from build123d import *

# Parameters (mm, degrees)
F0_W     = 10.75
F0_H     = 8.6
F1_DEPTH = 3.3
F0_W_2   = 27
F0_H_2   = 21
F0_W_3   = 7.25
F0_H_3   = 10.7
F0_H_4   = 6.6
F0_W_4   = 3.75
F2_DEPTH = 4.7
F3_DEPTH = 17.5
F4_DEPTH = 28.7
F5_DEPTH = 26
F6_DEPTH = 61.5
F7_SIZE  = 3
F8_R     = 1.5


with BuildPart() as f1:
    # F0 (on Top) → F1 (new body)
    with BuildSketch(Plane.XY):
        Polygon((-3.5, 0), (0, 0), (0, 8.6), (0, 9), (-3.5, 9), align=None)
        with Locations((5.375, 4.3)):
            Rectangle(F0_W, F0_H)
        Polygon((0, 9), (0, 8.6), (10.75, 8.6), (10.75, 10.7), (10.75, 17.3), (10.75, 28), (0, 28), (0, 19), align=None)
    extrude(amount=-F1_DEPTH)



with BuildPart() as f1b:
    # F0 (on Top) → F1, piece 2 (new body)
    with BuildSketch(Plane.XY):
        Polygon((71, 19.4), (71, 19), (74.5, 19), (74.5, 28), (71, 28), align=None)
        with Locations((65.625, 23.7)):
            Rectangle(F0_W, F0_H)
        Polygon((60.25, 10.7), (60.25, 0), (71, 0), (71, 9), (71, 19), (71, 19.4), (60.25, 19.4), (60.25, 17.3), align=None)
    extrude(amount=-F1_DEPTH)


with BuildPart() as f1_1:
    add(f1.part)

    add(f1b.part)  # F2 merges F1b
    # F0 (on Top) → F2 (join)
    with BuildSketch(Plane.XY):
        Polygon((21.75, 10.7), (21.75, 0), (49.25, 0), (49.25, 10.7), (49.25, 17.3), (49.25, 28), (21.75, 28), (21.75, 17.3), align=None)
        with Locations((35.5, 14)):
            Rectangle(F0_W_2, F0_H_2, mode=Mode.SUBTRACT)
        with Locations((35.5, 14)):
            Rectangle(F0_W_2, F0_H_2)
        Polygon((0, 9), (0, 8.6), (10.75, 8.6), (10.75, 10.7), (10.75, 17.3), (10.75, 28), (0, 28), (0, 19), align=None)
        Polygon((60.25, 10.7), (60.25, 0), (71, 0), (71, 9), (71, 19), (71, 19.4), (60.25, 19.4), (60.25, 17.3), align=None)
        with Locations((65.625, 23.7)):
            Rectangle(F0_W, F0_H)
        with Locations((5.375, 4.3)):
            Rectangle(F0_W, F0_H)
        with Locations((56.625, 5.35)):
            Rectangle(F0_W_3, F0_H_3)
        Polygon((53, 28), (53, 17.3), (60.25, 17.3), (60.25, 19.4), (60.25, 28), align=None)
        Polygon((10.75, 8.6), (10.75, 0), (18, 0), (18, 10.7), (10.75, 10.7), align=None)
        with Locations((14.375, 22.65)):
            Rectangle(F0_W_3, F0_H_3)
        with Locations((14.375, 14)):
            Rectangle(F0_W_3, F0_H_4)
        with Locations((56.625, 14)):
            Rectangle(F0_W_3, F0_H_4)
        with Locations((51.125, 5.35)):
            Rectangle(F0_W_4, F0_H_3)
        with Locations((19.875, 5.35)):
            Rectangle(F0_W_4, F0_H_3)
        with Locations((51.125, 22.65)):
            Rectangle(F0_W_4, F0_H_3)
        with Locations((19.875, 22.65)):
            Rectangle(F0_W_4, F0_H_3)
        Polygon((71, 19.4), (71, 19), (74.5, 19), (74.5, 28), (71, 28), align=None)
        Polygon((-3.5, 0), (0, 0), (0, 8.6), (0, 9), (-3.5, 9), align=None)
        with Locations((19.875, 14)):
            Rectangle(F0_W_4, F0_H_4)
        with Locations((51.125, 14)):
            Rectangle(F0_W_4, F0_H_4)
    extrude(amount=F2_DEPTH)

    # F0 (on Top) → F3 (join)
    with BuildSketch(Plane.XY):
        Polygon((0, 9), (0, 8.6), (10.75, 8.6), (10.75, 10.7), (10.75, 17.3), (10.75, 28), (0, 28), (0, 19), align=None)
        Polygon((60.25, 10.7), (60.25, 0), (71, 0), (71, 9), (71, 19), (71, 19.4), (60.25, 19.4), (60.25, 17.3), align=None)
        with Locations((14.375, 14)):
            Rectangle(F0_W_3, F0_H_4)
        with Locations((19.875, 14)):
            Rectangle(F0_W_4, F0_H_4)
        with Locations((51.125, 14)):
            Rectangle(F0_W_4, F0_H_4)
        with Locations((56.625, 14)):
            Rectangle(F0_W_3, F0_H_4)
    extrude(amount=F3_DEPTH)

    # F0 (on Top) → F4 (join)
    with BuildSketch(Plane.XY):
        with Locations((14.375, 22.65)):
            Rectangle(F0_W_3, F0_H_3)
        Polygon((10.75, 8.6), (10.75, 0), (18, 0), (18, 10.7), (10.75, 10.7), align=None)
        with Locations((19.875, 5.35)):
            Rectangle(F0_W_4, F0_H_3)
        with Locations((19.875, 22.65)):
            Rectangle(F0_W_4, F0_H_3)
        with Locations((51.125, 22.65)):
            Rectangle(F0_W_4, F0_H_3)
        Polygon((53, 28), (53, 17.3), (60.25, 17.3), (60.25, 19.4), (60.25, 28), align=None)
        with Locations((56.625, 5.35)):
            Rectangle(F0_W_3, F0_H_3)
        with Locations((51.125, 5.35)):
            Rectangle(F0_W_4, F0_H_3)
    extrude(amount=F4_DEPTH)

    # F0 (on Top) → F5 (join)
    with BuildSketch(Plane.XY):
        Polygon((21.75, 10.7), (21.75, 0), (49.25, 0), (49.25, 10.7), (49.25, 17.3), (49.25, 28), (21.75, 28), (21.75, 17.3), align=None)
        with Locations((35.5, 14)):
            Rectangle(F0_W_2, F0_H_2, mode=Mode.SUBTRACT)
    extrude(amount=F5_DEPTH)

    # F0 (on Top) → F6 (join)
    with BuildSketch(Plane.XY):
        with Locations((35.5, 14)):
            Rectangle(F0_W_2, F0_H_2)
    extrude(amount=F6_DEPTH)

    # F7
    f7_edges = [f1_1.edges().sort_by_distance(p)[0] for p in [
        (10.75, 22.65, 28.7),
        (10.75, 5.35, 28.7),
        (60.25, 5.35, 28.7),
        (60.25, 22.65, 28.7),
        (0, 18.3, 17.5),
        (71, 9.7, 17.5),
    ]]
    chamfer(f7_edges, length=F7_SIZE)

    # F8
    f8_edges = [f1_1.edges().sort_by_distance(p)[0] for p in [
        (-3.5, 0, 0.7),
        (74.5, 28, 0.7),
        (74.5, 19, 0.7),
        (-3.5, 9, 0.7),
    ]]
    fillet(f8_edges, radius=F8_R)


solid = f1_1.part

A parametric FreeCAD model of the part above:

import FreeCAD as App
import Part
import Sketcher
from FreeCAD import Vector


def edges_at(feature, points):
    """Names of the edges that pass closest to the given points."""
    edges = feature.Shape.Edges
    near = lambda p: min(range(len(edges)), key=lambda i: edges[i].distToShape(Part.Vertex(*p))[0])
    return sorted({f"Edge{near(p) + 1}" for p in points})

doc = App.newDocument("Part")
body = doc.addObject("PartDesign::Body", "Body")

sketch1 = body.newObject("Sketcher::SketchObject", "Sketch")
sketch1.AttachmentSupport = (doc.getObject("XY_Plane"), [""])
sketch1.MapMode = "FlatFace"
sketch1.addGeometry([
    Part.LineSegment(Vector(-3.5, 0, 0), Vector(10.8, 0, 0)),
    Part.LineSegment(Vector(10.8, 0, 0), Vector(10.8, 28, 0)),
    Part.LineSegment(Vector(10.8, 28, 0), Vector(0, 28, 0)),
    Part.LineSegment(Vector(0, 28, 0), Vector(0, 9, 0)),
    Part.LineSegment(Vector(0, 9, 0), Vector(-3.5, 9, 0)),
    Part.LineSegment(Vector(-3.5, 9, 0), Vector(-3.5, 0, 0)),
], False)
sketch1.addConstraint([
    Sketcher.Constraint("Coincident", 0, 2, 1, 1),
    Sketcher.Constraint("Coincident", 1, 2, 2, 1),
    Sketcher.Constraint("Coincident", 2, 2, 3, 1),
    Sketcher.Constraint("Coincident", 3, 2, 4, 1),
    Sketcher.Constraint("Coincident", 4, 2, 5, 1),
    Sketcher.Constraint("Coincident", 5, 2, 0, 1),
    Sketcher.Constraint("Horizontal", 0),
    Sketcher.Constraint("Vertical", 1),
    Sketcher.Constraint("Horizontal", 2),
    Sketcher.Constraint("Vertical", 3),
    Sketcher.Constraint("Horizontal", 4),
    Sketcher.Constraint("Vertical", 5),
    Sketcher.Constraint("PointOnObject", 0, 2, -1),
    Sketcher.Constraint("PointOnObject", 2, 2, -2),
    Sketcher.Constraint("DistanceY", 1, 1, 1, 2, 28.0),
    Sketcher.Constraint("DistanceY", 3, 2, 3, 1, 19.0),
    Sketcher.Constraint("DistanceX", 4, 2, 4, 1, 3.5),
    Sketcher.Constraint("DistanceX", 0, 1, 0, 2, 14.25),
])
pad1 = body.newObject("PartDesign::Pad", "Pad")
pad1.Profile = sketch1
pad1.Length = 3.3
pad1.Reversed = True
body2 = doc.addObject("PartDesign::Body", "Body001")

sketch2 = body2.newObject("Sketcher::SketchObject", "Sketch001")
sketch2.AttachmentSupport = (doc.getObject("XY_Plane001"), [""])
sketch2.MapMode = "FlatFace"
sketch2.addGeometry([
    Part.LineSegment(Vector(71, 19, 0), Vector(74.5, 19, 0)),
    Part.LineSegment(Vector(74.5, 19, 0), Vector(74.5, 28, 0)),
    Part.LineSegment(Vector(74.5, 28, 0), Vector(60.2, 28, 0)),
    Part.LineSegment(Vector(60.2, 28, 0), Vector(60.2, 0, 0)),
    Part.LineSegment(Vector(60.2, 0, 0), Vector(71, 0, 0)),
    Part.LineSegment(Vector(71, 0, 0), Vector(71, 19, 0)),
], False)
sketch2.addConstraint([
    Sketcher.Constraint("Coincident", 0, 2, 1, 1),
    Sketcher.Constraint("Coincident", 1, 2, 2, 1),
    Sketcher.Constraint("Coincident", 2, 2, 3, 1),
    Sketcher.Constraint("Coincident", 3, 2, 4, 1),
    Sketcher.Constraint("Coincident", 4, 2, 5, 1),
    Sketcher.Constraint("Coincident", 5, 2, 0, 1),
    Sketcher.Constraint("Horizontal", 0),
    Sketcher.Constraint("Vertical", 1),
    Sketcher.Constraint("Horizontal", 2),
    Sketcher.Constraint("Vertical", 3),
    Sketcher.Constraint("Horizontal", 4),
    Sketcher.Constraint("Vertical", 5),
    Sketcher.Constraint("PointOnObject", 3, 2, -1),
    Sketcher.Constraint("DistanceY", 1, 1, 1, 2, 9.0),
    Sketcher.Constraint("DistanceY", 3, 2, 3, 1, 28.0),
    Sketcher.Constraint("DistanceX", 0, 1, 0, 2, 3.5),
    Sketcher.Constraint("DistanceX", -1, 1, 4, 2, 71.0),
    Sketcher.Constraint("DistanceX", 2, 2, 2, 1, 14.25),
])
pad2 = body2.newObject("PartDesign::Pad", "Pad001")
pad2.Profile = sketch2
pad2.Length = 3.3
pad2.Reversed = True
body.AllowCompound = True
doc.recompute()

boolean = body.newObject("PartDesign::Boolean", "Boolean")
boolean.Type = "Fuse"
boolean.addObjects([body2])

sketch3 = body.newObject("Sketcher::SketchObject", "Sketch002")
sketch3.AttachmentSupport = (doc.getObject("XY_Plane"), [""])
sketch3.MapMode = "FlatFace"
sketch3.addGeometry([
    Part.LineSegment(Vector(71, 0, 0), Vector(71, 19, 0)),
    Part.LineSegment(Vector(71, 19, 0), Vector(74.5, 19, 0)),
    Part.LineSegment(Vector(74.5, 19, 0), Vector(74.5, 28, 0)),
    Part.LineSegment(Vector(74.5, 28, 0), Vector(0, 28, 0)),
    Part.LineSegment(Vector(0, 28, 0), Vector(0, 9, 0)),
    Part.LineSegment(Vector(0, 9, 0), Vector(-3.5, 9, 0)),
    Part.LineSegment(Vector(-3.5, 9, 0), Vector(-3.5, 0, 0)),
    Part.LineSegment(Vector(-3.5, 0, 0), Vector(71, 0, 0)),
], False)
sketch3.addConstraint([
    Sketcher.Constraint("Coincident", 0, 2, 1, 1),
    Sketcher.Constraint("Coincident", 1, 2, 2, 1),
    Sketcher.Constraint("Coincident", 2, 2, 3, 1),
    Sketcher.Constraint("Coincident", 3, 2, 4, 1),
    Sketcher.Constraint("Coincident", 4, 2, 5, 1),
    Sketcher.Constraint("Coincident", 5, 2, 6, 1),
    Sketcher.Constraint("Coincident", 6, 2, 7, 1),
    Sketcher.Constraint("Coincident", 7, 2, 0, 1),
    Sketcher.Constraint("Vertical", 0),
    Sketcher.Constraint("Horizontal", 1),
    Sketcher.Constraint("Vertical", 2),
    Sketcher.Constraint("Horizontal", 3),
    Sketcher.Constraint("Vertical", 4),
    Sketcher.Constraint("Horizontal", 5),
    Sketcher.Constraint("Vertical", 6),
    Sketcher.Constraint("Horizontal", 7),
    Sketcher.Constraint("PointOnObject", 3, 2, -2),
    Sketcher.Constraint("PointOnObject", 6, 2, -1),
    Sketcher.Constraint("Equal", 1, 5),
    Sketcher.Constraint("Equal", 0, 4),
    Sketcher.Constraint("DistanceY", 0, 1, 0, 2, 19.0),
    Sketcher.Constraint("DistanceY", 2, 1, 2, 2, 9.0),
    Sketcher.Constraint("DistanceX", 1, 1, 1, 2, 3.5),
    Sketcher.Constraint("DistanceX", 3, 2, 3, 1, 74.5),
])
pad3 = body.newObject("PartDesign::Pad", "Pad002")
pad3.Profile = sketch3
pad3.Length = 4.7

sketch4 = body.newObject("Sketcher::SketchObject", "Sketch003")
sketch4.AttachmentSupport = (doc.getObject("XY_Plane"), [""])
sketch4.MapMode = "FlatFace"
sketch4.addGeometry([
    Part.LineSegment(Vector(0, 8.6, 0), Vector(10.8, 8.6, 0)),
    Part.LineSegment(Vector(10.8, 8.6, 0), Vector(10.8, 10.7, 0)),
    Part.LineSegment(Vector(10.8, 10.7, 0), Vector(21.8, 10.7, 0)),
    Part.LineSegment(Vector(21.8, 10.7, 0), Vector(21.8, 17.3, 0)),
    Part.LineSegment(Vector(21.8, 17.3, 0), Vector(10.8, 17.3, 0)),
    Part.LineSegment(Vector(10.8, 17.3, 0), Vector(10.8, 28, 0)),
    Part.LineSegment(Vector(10.8, 28, 0), Vector(0, 28, 0)),
    Part.LineSegment(Vector(0, 28, 0), Vector(0, 8.6, 0)),
    Part.LineSegment(Vector(60.2, 0, 0), Vector(71, 0, 0)),
    Part.LineSegment(Vector(71, 0, 0), Vector(71, 19.4, 0)),
    Part.LineSegment(Vector(71, 19.4, 0), Vector(60.2, 19.4, 0)),
    Part.LineSegment(Vector(60.2, 19.4, 0), Vector(60.2, 17.3, 0)),
    Part.LineSegment(Vector(60.2, 17.3, 0), Vector(49.2, 17.3, 0)),
    Part.LineSegment(Vector(49.2, 17.3, 0), Vector(49.2, 10.7, 0)),
    Part.LineSegment(Vector(49.2, 10.7, 0), Vector(60.2, 10.7, 0)),
    Part.LineSegment(Vector(60.2, 10.7, 0), Vector(60.2, 0, 0)),
], False)
sketch4.addConstraint([
    Sketcher.Constraint("Coincident", 0, 2, 1, 1),
    Sketcher.Constraint("Coincident", 1, 2, 2, 1),
    Sketcher.Constraint("Coincident", 2, 2, 3, 1),
    Sketcher.Constraint("Coincident", 3, 2, 4, 1),
    Sketcher.Constraint("Coincident", 4, 2, 5, 1),
    Sketcher.Constraint("Coincident", 5, 2, 6, 1),
    Sketcher.Constraint("Coincident", 6, 2, 7, 1),
    Sketcher.Constraint("Coincident", 7, 2, 0, 1),
    Sketcher.Constraint("Coincident", 8, 2, 9, 1),
    Sketcher.Constraint("Coincident", 9, 2, 10, 1),
    Sketcher.Constraint("Coincident", 10, 2, 11, 1),
    Sketcher.Constraint("Coincident", 11, 2, 12, 1),
    Sketcher.Constraint("Coincident", 12, 2, 13, 1),
    Sketcher.Constraint("Coincident", 13, 2, 14, 1),
    Sketcher.Constraint("Coincident", 14, 2, 15, 1),
    Sketcher.Constraint("Coincident", 15, 2, 8, 1),
    Sketcher.Constraint("Horizontal", 0),
    Sketcher.Constraint("Vertical", 1),
    Sketcher.Constraint("Horizontal", 2),
    Sketcher.Constraint("Vertical", 3),
    Sketcher.Constraint("Horizontal", 4),
    Sketcher.Constraint("Vertical", 5),
    Sketcher.Constraint("Horizontal", 6),
    Sketcher.Constraint("Vertical", 7),
    Sketcher.Constraint("Horizontal", 8),
    Sketcher.Constraint("Vertical", 9),
    Sketcher.Constraint("Horizontal", 10),
    Sketcher.Constraint("Vertical", 11),
    Sketcher.Constraint("Horizontal", 12),
    Sketcher.Constraint("Vertical", 13),
    Sketcher.Constraint("Horizontal", 14),
    Sketcher.Constraint("Vertical", 15),
    Sketcher.Constraint("PointOnObject", 6, 2, -2),
    Sketcher.Constraint("PointOnObject", 8, 2, -1),
    Sketcher.Constraint("Horizontal", 4, 2, 11, 2),
    Sketcher.Constraint("Horizontal", 2, 2, 13, 2),
    Sketcher.Constraint("Vertical", 1, 2, 4, 2),
    Sketcher.Constraint("Vertical", 11, 2, 14, 2),
    Sketcher.Constraint("Equal", 6, 8),
    Sketcher.Constraint("Equal", 4, 12),
    Sketcher.Constraint("Equal", 7, 9),
    Sketcher.Constraint("Equal", 1, 11),
    Sketcher.Constraint("DistanceX", 2, 1, 2, 2, 11.0),
    Sketcher.Constraint("DistanceY", 1, 1, 1, 2, 2.1),
    Sketcher.Constraint("DistanceY", 3, 1, 3, 2, 6.6),
    Sketcher.Constraint("DistanceY", 5, 1, 5, 2, 10.7),
    Sketcher.Constraint("DistanceX", -1, 1, 8, 2, 71.0),
    Sketcher.Constraint("DistanceX", 0, 1, 0, 2, 10.75),
])
pad4 = body.newObject("PartDesign::Pad", "Pad003")
pad4.Profile = sketch4
pad4.Length = 17.5

sketch5 = body.newObject("Sketcher::SketchObject", "Sketch004")
sketch5.AttachmentSupport = (doc.getObject("XY_Plane"), [""])
sketch5.MapMode = "FlatFace"
sketch5.addGeometry([
    Part.LineSegment(Vector(11, 28, 0), Vector(11, 17, 0)),
    Part.LineSegment(Vector(11, 17, 0), Vector(22, 17, 0)),
    Part.LineSegment(Vector(22, 17, 0), Vector(22, 28, 0)),
    Part.LineSegment(Vector(22, 28, 0), Vector(11, 28, 0)),
    Part.LineSegment(Vector(11, 0, 0), Vector(22, 0, 0)),
    Part.LineSegment(Vector(22, 0, 0), Vector(22, 11, 0)),
    Part.LineSegment(Vector(22, 11, 0), Vector(11, 11, 0)),
    Part.LineSegment(Vector(11, 11, 0), Vector(11, 0, 0)),
    Part.LineSegment(Vector(49, 28, 0), Vector(49, 17, 0)),
    Part.LineSegment(Vector(49, 17, 0), Vector(60, 17, 0)),
    Part.LineSegment(Vector(60, 17, 0), Vector(60, 28, 0)),
    Part.LineSegment(Vector(60, 28, 0), Vector(49, 28, 0)),
    Part.LineSegment(Vector(60, 0, 0), Vector(60, 11, 0)),
    Part.LineSegment(Vector(60, 11, 0), Vector(49, 11, 0)),
    Part.LineSegment(Vector(49, 11, 0), Vector(49, 0, 0)),
    Part.LineSegment(Vector(49, 0, 0), Vector(60, 0, 0)),
], False)
sketch5.addConstraint([
    Sketcher.Constraint("Coincident", 0, 2, 1, 1),
    Sketcher.Constraint("Coincident", 1, 2, 2, 1),
    Sketcher.Constraint("Coincident", 2, 2, 3, 1),
    Sketcher.Constraint("Coincident", 3, 2, 0, 1),
    Sketcher.Constraint("Coincident", 4, 2, 5, 1),
    Sketcher.Constraint("Coincident", 5, 2, 6, 1),
    Sketcher.Constraint("Coincident", 6, 2, 7, 1),
    Sketcher.Constraint("Coincident", 7, 2, 4, 1),
    Sketcher.Constraint("Coincident", 8, 2, 9, 1),
    Sketcher.Constraint("Coincident", 9, 2, 10, 1),
    Sketcher.Constraint("Coincident", 10, 2, 11, 1),
    Sketcher.Constraint("Coincident", 11, 2, 8, 1),
    Sketcher.Constraint("Coincident", 12, 2, 13, 1),
    Sketcher.Constraint("Coincident", 13, 2, 14, 1),
    Sketcher.Constraint("Coincident", 14, 2, 15, 1),
    Sketcher.Constraint("Coincident", 15, 2, 12, 1),
    Sketcher.Constraint("Vertical", 0),
    Sketcher.Constraint("Horizontal", 1),
    Sketcher.Constraint("Vertical", 2),
    Sketcher.Constraint("Horizontal", 3),
    Sketcher.Constraint("Horizontal", 4),
    Sketcher.Constraint("Vertical", 5),
    Sketcher.Constraint("Horizontal", 6),
    Sketcher.Constraint("Vertical", 7),
    Sketcher.Constraint("Vertical", 8),
    Sketcher.Constraint("Horizontal", 9),
    Sketcher.Constraint("Vertical", 10),
    Sketcher.Constraint("Horizontal", 11),
    Sketcher.Constraint("Vertical", 12),
    Sketcher.Constraint("Horizontal", 13),
    Sketcher.Constraint("Vertical", 14),
    Sketcher.Constraint("Horizontal", 15),
    Sketcher.Constraint("PointOnObject", 4, 2, -1),
    Sketcher.Constraint("PointOnObject", 14, 2, -1),
    Sketcher.Constraint("Horizontal", 1, 2, 8, 2),
    Sketcher.Constraint("Horizontal", 3, 2, 10, 2),
    Sketcher.Constraint("Horizontal", 6, 2, 12, 2),
    Sketcher.Constraint("Vertical", 2, 2, 4, 2),
    Sketcher.Constraint("Vertical", 3, 2, 6, 2),
    Sketcher.Constraint("Vertical", 10, 2, 12, 2),
    Sketcher.Constraint("Vertical", 11, 2, 13, 2),
    Sketcher.Constraint("Equal", 6, 9),
    Sketcher.Constraint("Equal", 2, 5),
    Sketcher.Constraint("DistanceX", 1, 1, 1, 2, 11.0),
    Sketcher.Constraint("DistanceY", 0, 2, 0, 1, 10.7),
    Sketcher.Constraint("DistanceY", -1, 1, 2, 2, 28.0),
    Sketcher.Constraint("DistanceX", 1, 2, 8, 2, 27.5),
    Sketcher.Constraint("DistanceX", -1, 1, 0, 2, 10.75),
])
pad5 = body.newObject("PartDesign::Pad", "Pad004")
pad5.Profile = sketch5
pad5.Length = 28.7

sketch6 = body.newObject("Sketcher::SketchObject", "Sketch005")
sketch6.AttachmentSupport = (doc.getObject("XY_Plane"), [""])
sketch6.MapMode = "FlatFace"
sketch6.addGeometry([
    Part.LineSegment(Vector(22, 0, 0), Vector(49, 0, 0)),
    Part.LineSegment(Vector(49, 0, 0), Vector(49, 28, 0)),
    Part.LineSegment(Vector(49, 28, 0), Vector(22, 28, 0)),
    Part.LineSegment(Vector(22, 28, 0), Vector(22, 0, 0)),
    Part.LineSegment(Vector(49, 4, 0), Vector(22, 4, 0)),
    Part.LineSegment(Vector(22, 4, 0), Vector(22, 24, 0)),
    Part.LineSegment(Vector(22, 24, 0), Vector(49, 24, 0)),
    Part.LineSegment(Vector(49, 24, 0), Vector(49, 4, 0)),
], False)
sketch6.addConstraint([
    Sketcher.Constraint("Coincident", 0, 2, 1, 1),
    Sketcher.Constraint("Coincident", 1, 2, 2, 1),
    Sketcher.Constraint("Coincident", 2, 2, 3, 1),
    Sketcher.Constraint("Coincident", 3, 2, 0, 1),
    Sketcher.Constraint("Coincident", 4, 2, 5, 1),
    Sketcher.Constraint("Coincident", 5, 2, 6, 1),
    Sketcher.Constraint("Coincident", 6, 2, 7, 1),
    Sketcher.Constraint("Coincident", 7, 2, 4, 1),
    Sketcher.Constraint("Horizontal", 0),
    Sketcher.Constraint("Vertical", 1),
    Sketcher.Constraint("Horizontal", 2),
    Sketcher.Constraint("Vertical", 3),
    Sketcher.Constraint("Horizontal", 4),
    Sketcher.Constraint("Vertical", 5),
    Sketcher.Constraint("Horizontal", 6),
    Sketcher.Constraint("Vertical", 7),
    Sketcher.Constraint("PointOnObject", 0, 2, -1),
    Sketcher.Constraint("DistanceX", 4, 2, 4, 1, 27.0),
    Sketcher.Constraint("DistanceY", 1, 1, 1, 2, 28.0),
    Sketcher.Constraint("DistanceY", 5, 1, 5, 2, 21.0),
    Sketcher.Constraint("DistanceX", 0, 1, 0, 2, 27.5),
    Sketcher.Constraint("DistanceX", -1, 1, 4, 2, 22.0),
    Sketcher.Constraint("DistanceY", -1, 1, 4, 2, 3.5),
    Sketcher.Constraint("DistanceX", -1, 1, 0, 2, 49.25),
])
pad6 = body.newObject("PartDesign::Pad", "Pad005")
pad6.Profile = sketch6
pad6.Length = 26

sketch7 = body.newObject("Sketcher::SketchObject", "Sketch006")
sketch7.AttachmentSupport = (doc.getObject("XY_Plane"), [""])
sketch7.MapMode = "FlatFace"
sketch7.addGeometry([
    Part.LineSegment(Vector(22, 24, 0), Vector(22, 4, 0)),
    Part.LineSegment(Vector(22, 4, 0), Vector(49, 4, 0)),
    Part.LineSegment(Vector(49, 4, 0), Vector(49, 24, 0)),
    Part.LineSegment(Vector(49, 24, 0), Vector(22, 24, 0)),
], False)
sketch7.addConstraint([
    Sketcher.Constraint("Coincident", 0, 2, 1, 1),
    Sketcher.Constraint("Coincident", 1, 2, 2, 1),
    Sketcher.Constraint("Coincident", 2, 2, 3, 1),
    Sketcher.Constraint("Coincident", 3, 2, 0, 1),
    Sketcher.Constraint("Vertical", 0),
    Sketcher.Constraint("Horizontal", 1),
    Sketcher.Constraint("Vertical", 2),
    Sketcher.Constraint("Horizontal", 3),
    Sketcher.Constraint("DistanceX", 1, 1, 1, 2, 27.0),
    Sketcher.Constraint("DistanceY", 0, 2, 0, 1, 21.0),
    Sketcher.Constraint("DistanceX", -1, 1, 0, 2, 22.0),
    Sketcher.Constraint("DistanceY", -1, 1, 0, 2, 3.5),
])
pad7 = body.newObject("PartDesign::Pad", "Pad006")
pad7.Profile = sketch7
pad7.Length = 61.5
doc.recompute()

chamfer = body.newObject("PartDesign::Chamfer", "Chamfer")
chamfer.Base = (pad7, edges_at(pad7, [
    (10.75, 22.65, 28.7),
    (10.75, 5.35, 28.7),
    (60.25, 5.35, 28.7),
    (60.25, 22.65, 28.7),
    (0, 18.3, 17.5),
    (71, 9.7, 17.5),
]))
chamfer.Size = 3
doc.recompute()

fillet = body.newObject("PartDesign::Fillet", "Fillet")
fillet.Base = (chamfer, edges_at(chamfer, [
    (-3.5, 0, 0.7),
    (74.5, 28, 0.7),
    (74.5, 19, 0.7),
    (-3.5, 9, 0.7),
]))
fillet.Radius = 1.5

doc.recompute()
